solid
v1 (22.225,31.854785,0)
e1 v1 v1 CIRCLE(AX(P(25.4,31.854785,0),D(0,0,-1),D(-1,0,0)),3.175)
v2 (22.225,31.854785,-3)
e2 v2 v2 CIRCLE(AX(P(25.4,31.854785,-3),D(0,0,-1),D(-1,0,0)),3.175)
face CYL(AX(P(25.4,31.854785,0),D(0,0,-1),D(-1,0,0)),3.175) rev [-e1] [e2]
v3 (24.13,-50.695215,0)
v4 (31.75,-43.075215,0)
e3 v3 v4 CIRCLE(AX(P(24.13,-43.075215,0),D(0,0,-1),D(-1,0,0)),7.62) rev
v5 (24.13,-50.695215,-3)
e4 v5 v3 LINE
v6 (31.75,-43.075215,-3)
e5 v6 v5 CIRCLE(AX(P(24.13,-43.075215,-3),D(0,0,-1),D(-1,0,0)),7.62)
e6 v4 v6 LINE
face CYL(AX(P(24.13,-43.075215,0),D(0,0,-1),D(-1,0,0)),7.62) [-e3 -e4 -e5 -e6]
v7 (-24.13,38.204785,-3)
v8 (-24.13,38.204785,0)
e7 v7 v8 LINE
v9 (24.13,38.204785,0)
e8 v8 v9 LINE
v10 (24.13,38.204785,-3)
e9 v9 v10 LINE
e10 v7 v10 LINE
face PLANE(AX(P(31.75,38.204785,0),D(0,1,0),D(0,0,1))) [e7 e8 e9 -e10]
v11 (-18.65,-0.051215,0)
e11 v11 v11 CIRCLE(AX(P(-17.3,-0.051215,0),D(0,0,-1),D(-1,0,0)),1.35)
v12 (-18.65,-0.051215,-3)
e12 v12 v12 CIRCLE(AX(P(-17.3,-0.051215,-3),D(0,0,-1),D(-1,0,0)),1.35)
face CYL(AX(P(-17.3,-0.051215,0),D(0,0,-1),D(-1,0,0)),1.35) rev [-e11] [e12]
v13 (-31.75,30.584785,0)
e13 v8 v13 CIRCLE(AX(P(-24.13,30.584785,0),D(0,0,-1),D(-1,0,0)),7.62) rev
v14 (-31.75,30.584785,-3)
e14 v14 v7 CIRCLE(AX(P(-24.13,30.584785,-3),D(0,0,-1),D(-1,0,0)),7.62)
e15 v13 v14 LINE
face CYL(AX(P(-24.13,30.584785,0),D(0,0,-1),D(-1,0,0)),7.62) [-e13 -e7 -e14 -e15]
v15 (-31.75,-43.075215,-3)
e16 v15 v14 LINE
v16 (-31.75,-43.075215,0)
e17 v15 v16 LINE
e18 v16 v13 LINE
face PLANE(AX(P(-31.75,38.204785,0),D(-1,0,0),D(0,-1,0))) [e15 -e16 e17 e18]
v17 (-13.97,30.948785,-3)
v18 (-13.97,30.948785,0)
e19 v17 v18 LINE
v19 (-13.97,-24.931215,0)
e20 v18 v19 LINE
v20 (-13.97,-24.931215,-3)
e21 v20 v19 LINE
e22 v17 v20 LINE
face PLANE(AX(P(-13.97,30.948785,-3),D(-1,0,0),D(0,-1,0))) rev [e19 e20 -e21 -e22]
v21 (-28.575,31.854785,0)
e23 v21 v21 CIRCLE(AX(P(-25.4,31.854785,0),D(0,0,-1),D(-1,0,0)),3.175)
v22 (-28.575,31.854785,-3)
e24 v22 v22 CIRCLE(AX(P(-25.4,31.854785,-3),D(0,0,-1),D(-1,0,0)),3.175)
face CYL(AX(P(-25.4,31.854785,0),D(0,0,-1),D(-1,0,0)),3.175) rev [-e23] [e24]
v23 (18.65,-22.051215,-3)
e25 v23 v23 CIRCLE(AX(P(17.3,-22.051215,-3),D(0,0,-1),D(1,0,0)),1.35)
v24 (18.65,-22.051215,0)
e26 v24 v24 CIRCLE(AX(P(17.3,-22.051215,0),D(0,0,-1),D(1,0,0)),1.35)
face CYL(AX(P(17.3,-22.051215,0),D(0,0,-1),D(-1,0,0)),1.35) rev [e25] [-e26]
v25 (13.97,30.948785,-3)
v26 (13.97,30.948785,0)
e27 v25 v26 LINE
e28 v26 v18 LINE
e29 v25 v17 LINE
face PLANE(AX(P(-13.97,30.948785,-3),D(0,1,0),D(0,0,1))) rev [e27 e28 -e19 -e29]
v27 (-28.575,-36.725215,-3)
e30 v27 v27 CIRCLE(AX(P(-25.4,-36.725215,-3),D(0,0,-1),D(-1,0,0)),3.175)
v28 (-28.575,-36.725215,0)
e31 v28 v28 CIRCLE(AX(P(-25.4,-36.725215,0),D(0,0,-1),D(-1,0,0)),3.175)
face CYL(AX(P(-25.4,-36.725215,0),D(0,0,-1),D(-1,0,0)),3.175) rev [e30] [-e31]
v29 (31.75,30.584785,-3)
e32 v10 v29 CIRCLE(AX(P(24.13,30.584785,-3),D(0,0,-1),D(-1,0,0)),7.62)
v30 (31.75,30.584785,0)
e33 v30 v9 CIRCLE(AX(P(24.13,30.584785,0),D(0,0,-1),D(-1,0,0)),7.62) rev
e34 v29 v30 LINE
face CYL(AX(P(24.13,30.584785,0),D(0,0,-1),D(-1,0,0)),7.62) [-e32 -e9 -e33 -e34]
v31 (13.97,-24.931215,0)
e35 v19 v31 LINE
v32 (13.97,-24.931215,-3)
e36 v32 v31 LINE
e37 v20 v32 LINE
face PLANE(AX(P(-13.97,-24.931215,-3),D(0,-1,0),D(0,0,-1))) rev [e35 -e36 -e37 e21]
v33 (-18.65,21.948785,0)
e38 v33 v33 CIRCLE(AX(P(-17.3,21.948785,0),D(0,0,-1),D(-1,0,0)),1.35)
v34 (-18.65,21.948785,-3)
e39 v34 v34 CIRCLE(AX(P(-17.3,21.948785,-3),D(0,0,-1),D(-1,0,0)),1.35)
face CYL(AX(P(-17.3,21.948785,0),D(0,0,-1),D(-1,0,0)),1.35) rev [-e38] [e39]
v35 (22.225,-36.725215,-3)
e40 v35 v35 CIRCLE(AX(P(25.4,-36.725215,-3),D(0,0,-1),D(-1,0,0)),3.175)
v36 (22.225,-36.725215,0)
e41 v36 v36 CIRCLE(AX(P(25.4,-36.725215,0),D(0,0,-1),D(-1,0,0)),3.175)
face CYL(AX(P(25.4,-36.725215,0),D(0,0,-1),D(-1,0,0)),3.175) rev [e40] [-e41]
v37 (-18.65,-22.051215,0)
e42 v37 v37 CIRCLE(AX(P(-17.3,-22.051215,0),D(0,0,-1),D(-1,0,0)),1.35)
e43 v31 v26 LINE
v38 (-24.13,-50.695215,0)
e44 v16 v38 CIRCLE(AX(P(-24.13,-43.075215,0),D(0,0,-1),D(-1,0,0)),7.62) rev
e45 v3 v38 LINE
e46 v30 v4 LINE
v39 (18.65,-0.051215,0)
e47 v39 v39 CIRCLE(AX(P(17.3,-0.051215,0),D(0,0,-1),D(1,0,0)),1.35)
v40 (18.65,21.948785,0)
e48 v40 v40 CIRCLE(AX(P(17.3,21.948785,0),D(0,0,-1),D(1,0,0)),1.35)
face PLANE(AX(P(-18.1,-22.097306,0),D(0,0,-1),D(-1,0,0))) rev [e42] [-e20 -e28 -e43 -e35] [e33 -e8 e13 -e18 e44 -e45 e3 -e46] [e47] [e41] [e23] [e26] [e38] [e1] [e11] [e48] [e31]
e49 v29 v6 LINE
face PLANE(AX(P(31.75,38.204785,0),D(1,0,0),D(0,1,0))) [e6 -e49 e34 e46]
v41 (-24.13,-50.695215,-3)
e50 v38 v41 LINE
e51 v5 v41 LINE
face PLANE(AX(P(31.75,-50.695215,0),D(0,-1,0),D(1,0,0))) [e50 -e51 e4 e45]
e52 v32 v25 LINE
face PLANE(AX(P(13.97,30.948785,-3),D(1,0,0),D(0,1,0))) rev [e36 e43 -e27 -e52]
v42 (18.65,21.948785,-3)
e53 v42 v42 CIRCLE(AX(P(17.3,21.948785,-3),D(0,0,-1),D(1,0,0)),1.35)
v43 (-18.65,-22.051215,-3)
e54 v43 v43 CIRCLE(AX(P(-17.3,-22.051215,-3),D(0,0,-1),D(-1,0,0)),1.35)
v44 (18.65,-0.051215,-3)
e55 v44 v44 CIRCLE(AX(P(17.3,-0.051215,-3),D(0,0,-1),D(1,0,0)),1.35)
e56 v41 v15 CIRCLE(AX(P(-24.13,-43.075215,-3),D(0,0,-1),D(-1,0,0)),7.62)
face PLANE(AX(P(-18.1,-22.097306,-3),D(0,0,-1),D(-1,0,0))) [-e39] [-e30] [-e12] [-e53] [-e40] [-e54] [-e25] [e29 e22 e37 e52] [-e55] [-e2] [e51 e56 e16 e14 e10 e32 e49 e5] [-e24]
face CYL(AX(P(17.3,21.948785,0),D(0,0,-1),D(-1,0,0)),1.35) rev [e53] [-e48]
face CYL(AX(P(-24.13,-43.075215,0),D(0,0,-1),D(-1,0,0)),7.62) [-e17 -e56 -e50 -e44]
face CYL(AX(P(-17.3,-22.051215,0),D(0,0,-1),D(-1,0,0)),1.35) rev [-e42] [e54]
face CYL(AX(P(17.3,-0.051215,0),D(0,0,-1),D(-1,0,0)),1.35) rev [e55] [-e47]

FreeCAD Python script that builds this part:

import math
import FreeCAD as App
import Part
import Sketcher
Q = App.Units.Quantity


def edges_at(feature, points):
    """Names of the edges that pass closest to the given points."""
    edges = feature.Shape.Edges
    near = lambda p: min(range(len(edges)), key=lambda i: edges[i].distToShape(Part.Vertex(*p))[0])
    return sorted({f"Edge{near(p) + 1}" for p in points})

doc = App.newDocument("Part")
params = doc.addObject("Spreadsheet::Sheet", "Params")
for row, (alias, value) in enumerate([
    ("pad1_length", "3 mm"),
    ("sketch3_width", "2.5 in"),
    ("sketch3_height", "3.5 in"),
    ("pad2_length", "3 mm"),
    ("sketch4_width", "1.1 in"),
    ("sketch4_height", "2.2 in"),
    ("sketch5_diameter", "0.25 in"),
    ("fillet_radius", "0.3 in"),
], start=1):
    params.set(f"A{row}", alias)
    params.set(f"B{row}", "=" + value)
    params.setAlias(f"B{row}", alias)

body = doc.addObject("PartDesign::Body", "Body")

# Sketch on XY plane
sketch1 = doc.addObject("Sketcher::SketchObject", "Sketch")
body.addObject(sketch1)
sketch1.AttachmentSupport = (doc.XY_Plane, [""])
sketch1.MapMode = "FlatFace"
sketch1.addGeometry([
    Part.LineSegment(App.Vector(-14.850045, 29.751478, 0), App.Vector(-19.69889, 23.298785, 0)),  # 0
    Part.ArcOfCircle(Part.Circle(App.Vector(-18.1, 22.097306, 0), App.Vector(0, 0, 1), 2), math.radians(143.077149), math.radians(180)),  # 1
    Part.LineSegment(App.Vector(-20.1, 22.097306, 0), App.Vector(-20.1, -22.097306, 0)),  # 2
    Part.ArcOfCircle(Part.Circle(App.Vector(-18.1, -22.097306, 0), App.Vector(0, 0, 1), 2), math.radians(-180), math.radians(-143.077149)),  # 3
    Part.LineSegment(App.Vector(-19.69889, -23.298785, 0), App.Vector(-14.850045, -29.751478, 0)),  # 4
    Part.ArcOfCircle(Part.Circle(App.Vector(-13.251155, -28.55, 0), App.Vector(0, 0, 1), 2), math.radians(-143.077149), math.radians(-90)),  # 5
    Part.LineSegment(App.Vector(-13.251155, -30.55, 0), App.Vector(13.251155, -30.55, 0)),  # 6
    Part.ArcOfCircle(Part.Circle(App.Vector(13.251155, -28.55, 0), App.Vector(0, 0, 1), 2), math.radians(-90), math.radians(-36.922851)),  # 7
    Part.LineSegment(App.Vector(14.850045, -29.751478, 0), App.Vector(19.69889, -23.298785, 0)),  # 8
    Part.ArcOfCircle(Part.Circle(App.Vector(18.1, -22.097306, 0), App.Vector(0, 0, 1), 2), math.radians(-36.922851), math.radians(0)),  # 9
    Part.LineSegment(App.Vector(20.1, -22.097306, 0), App.Vector(20.1, 22.097306, 0)),  # 10
    Part.ArcOfCircle(Part.Circle(App.Vector(18.1, 22.097306, 0), App.Vector(0, 0, 1), 2), math.radians(0), math.radians(36.922851)),  # 11
    Part.LineSegment(App.Vector(19.69889, 23.298785, 0), App.Vector(14.850045, 29.751478, 0)),  # 12
    Part.ArcOfCircle(Part.Circle(App.Vector(13.251155, 28.55, 0), App.Vector(0, 0, 1), 2), math.radians(36.922851), math.radians(90)),  # 13
    Part.LineSegment(App.Vector(13.251155, 30.55, 0), App.Vector(-13.251155, 30.55, 0)),  # 14
    Part.ArcOfCircle(Part.Circle(App.Vector(-13.251155, 28.55, 0), App.Vector(0, 0, 1), 2), math.radians(90), math.radians(143.077149)),  # 15
], False)
sketch1.addConstraint([
    Sketcher.Constraint("Tangent", 0, 2, 1, 1),
    Sketcher.Constraint("Tangent", 1, 2, 2, 1),
    Sketcher.Constraint("Tangent", 2, 2, 3, 1),
    Sketcher.Constraint("Tangent", 3, 2, 4, 1),
    Sketcher.Constraint("Tangent", 4, 2, 5, 1),
    Sketcher.Constraint("Tangent", 5, 2, 6, 1),
    Sketcher.Constraint("Tangent", 6, 2, 7, 1),
    Sketcher.Constraint("Tangent", 7, 2, 8, 1),
    Sketcher.Constraint("Tangent", 8, 2, 9, 1),
    Sketcher.Constraint("Tangent", 9, 2, 10, 1),
    Sketcher.Constraint("Tangent", 10, 2, 11, 1),
    Sketcher.Constraint("Tangent", 11, 2, 12, 1),
    Sketcher.Constraint("Tangent", 12, 2, 13, 1),
    Sketcher.Constraint("Tangent", 13, 2, 14, 1),
    Sketcher.Constraint("Tangent", 14, 2, 15, 1),
    Sketcher.Constraint("Tangent", 15, 2, 0, 1),
    Sketcher.Constraint("Vertical", 2),
    Sketcher.Constraint("Horizontal", 6),
    Sketcher.Constraint("Vertical", 10),
    Sketcher.Constraint("Horizontal", 14),
    Sketcher.Constraint("Equal", 1, 3),
    Sketcher.Constraint("Equal", 3, 5),
    Sketcher.Constraint("Equal", 5, 7),
    Sketcher.Constraint("Equal", 7, 9),
    Sketcher.Constraint("Equal", 9, 11),
    Sketcher.Constraint("Equal", 11, 13),
    Sketcher.Constraint("Equal", 13, 15),
    Sketcher.Constraint("Symmetric", 1, 3, 9, 3, -1, 1),
    Sketcher.Constraint("Symmetric", 5, 3, 13, 3, -1, 1),
    Sketcher.Constraint("Symmetric", 4, 2, 7, 2, -2),
    Sketcher.Constraint("Symmetric", 0, 2, 11, 2, -2),
    Sketcher.Constraint("Radius", 1, Q("2 mm")),
    Sketcher.Constraint("DistanceX", 6, 1, 6, 2, Q("26.50231 mm")),
    Sketcher.Constraint("DistanceX", 1, 3, -1, 1, Q("18.1 mm")),
    Sketcher.Constraint("DistanceY", 5, 3, -1, 1, Q("28.55 mm")),
    Sketcher.Constraint("DistanceX", 4, 2, 7, 3, Q("28.1012 mm")),
])
pad1 = doc.addObject("PartDesign::Pad", "Pad")
body.addObject(pad1)
pad1.Profile = sketch1
pad1.setExpression("Length", "Params.pad1_length")
pad1.Reversed = True

# Sketch on XY plane
sketch2 = doc.addObject("Sketcher::SketchObject", "Sketch001")
body.addObject(sketch2)
sketch2.AttachmentSupport = (doc.XY_Plane, [""])
sketch2.MapMode = "FlatFace"
sketch2.AttachmentOffset = App.Placement(App.Vector(0, 0, -3), App.Rotation())
sketch2.addGeometry([
    Part.Circle(App.Vector(-17.3, 21.948784, 0), App.Vector(0, 0, 1), 1.35),  # 0
    Part.Circle(App.Vector(-17.3, -0.051215, 0), App.Vector(0, 0, 1), 1.35),  # 1
    Part.Circle(App.Vector(-17.3, -22.051216, 0), App.Vector(0, 0, 1), 1.35),  # 2
    Part.Circle(App.Vector(-11, -27.75, 0), App.Vector(0, 0, 1), 1.385),  # 3
    Part.Circle(App.Vector(11, -27.75, 0), App.Vector(0, 0, 1), 1.385),  # 4
    Part.Circle(App.Vector(17.3, -22.051216, 0), App.Vector(0, 0, 1), 1.35),  # 5
    Part.Circle(App.Vector(17.3, -0.051215, 0), App.Vector(0, 0, 1), 1.35),  # 6
    Part.Circle(App.Vector(17.3, 21.948784, 0), App.Vector(0, 0, 1), 1.35),  # 7
], False)
sketch2.addConstraint([
    Sketcher.Constraint("Equal", 0, 1),
    Sketcher.Constraint("Equal", 1, 2),
    Sketcher.Constraint("Equal", 3, 4),
    Sketcher.Constraint("Equal", 2, 5),
    Sketcher.Constraint("Equal", 5, 6),
    Sketcher.Constraint("Equal", 6, 7),
    Sketcher.Constraint("Symmetric", 3, 3, 4, 3, -2),
    Sketcher.Constraint("Symmetric", 2, 3, 5, 3, -2),
    Sketcher.Constraint("Symmetric", 1, 3, 6, 3, -2),
    Sketcher.Constraint("Symmetric", 0, 3, 7, 3, -2),
    Sketcher.Constraint("Vertical", 0, 3, 1, 3),
    Sketcher.Constraint("Vertical", 1, 3, 2, 3),
    Sketcher.Constraint("Diameter", 0, Q("2.7 mm")),
    Sketcher.Constraint("Diameter", 3, Q("2.77 mm")),
    Sketcher.Constraint("DistanceX", 0, 3, -1, 1, Q("17.3 mm")),
    Sketcher.Constraint("DistanceX", 3, 3, -1, 1, Q("11 mm")),
    Sketcher.Constraint("DistanceY", 3, 3, -1, 1, Q("27.75 mm")),
    Sketcher.Constraint("DistanceY", 1, 3, 0, 3, Q("22 mm")),
    Sketcher.Constraint("DistanceY", 2, 3, 1, 3, Q("22 mm")),
    Sketcher.Constraint("DistanceY", -1, 1, 0, 3, Q("21.948784 mm")),
])
pocket1 = doc.addObject("PartDesign::Pocket", "Pocket")
body.addObject(pocket1)
pocket1.Profile = sketch2
pocket1.Type = "ThroughAll"
pocket1.Reversed = True

# Sketch on XY plane
sketch3 = doc.addObject("Sketcher::SketchObject", "Sketch002")
body.addObject(sketch3)
sketch3.AttachmentSupport = (doc.XY_Plane, [""])
sketch3.MapMode = "FlatFace"
sketch3.AttachmentOffset = App.Placement(App.Vector(0, 0, -3), App.Rotation())
sketch3.addGeometry([
    Part.LineSegment(App.Vector(31.75, 38.204785, 0), App.Vector(31.75, -50.695216, 0)),  # 0
    Part.LineSegment(App.Vector(31.75, -50.695216, 0), App.Vector(-31.75, -50.695216, 0)),  # 1
    Part.LineSegment(App.Vector(-31.75, -50.695216, 0), App.Vector(-31.75, 38.204785, 0)),  # 2
    Part.LineSegment(App.Vector(-31.75, 38.204785, 0), App.Vector(31.75, 38.204785, 0)),  # 3
    Part.LineSegment(App.Vector(-19.160538, -23.61877, 0), App.Vector(19.160538, -23.61877, 0)),  # 4
    Part.LineSegment(App.Vector(19.160538, -23.61877, 0), App.Vector(19.160538, 23.61877, 0)),  # 5
    Part.LineSegment(App.Vector(19.160538, 23.61877, 0), App.Vector(-19.160538, 23.61877, 0)),  # 6
    Part.LineSegment(App.Vector(-19.160538, 23.61877, 0), App.Vector(-19.160538, -23.61877, 0)),  # 7
], False)
sketch3.addConstraint([
    Sketcher.Constraint("Coincident", 0, 2, 1, 1),
    Sketcher.Constraint("Coincident", 1, 2, 2, 1),
    Sketcher.Constraint("Coincident", 2, 2, 3, 1),
    Sketcher.Constraint("Coincident", 3, 2, 0, 1),
    Sketcher.Constraint("Coincident", 4, 2, 5, 1),
    Sketcher.Constraint("Coincident", 5, 2, 6, 1),
    Sketcher.Constraint("Coincident", 6, 2, 7, 1),
    Sketcher.Constraint("Coincident", 7, 2, 4, 1),
    Sketcher.Constraint("Vertical", 0),
    Sketcher.Constraint("Horizontal", 1),
    Sketcher.Constraint("Vertical", 2),
    Sketcher.Constraint("Horizontal", 3),
    Sketcher.Constraint("Horizontal", 4),
    Sketcher.Constraint("Vertical", 5),
    Sketcher.Constraint("Horizontal", 6),
    Sketcher.Constraint("Vertical", 7),
    Sketcher.Constraint("Symmetric", 4, 2, 6, 2, -1, 1),
    Sketcher.Constraint("DistanceX", 1, 2, 1, 1, Q("2.5 in")),
    Sketcher.Constraint("DistanceY", 0, 2, 0, 1, Q("3.5 in")),
    Sketcher.Constraint("DistanceX", -1, 1, 0, 2, Q("1.25 in")),
    Sketcher.Constraint("DistanceY", 5, 1, 5, 2, Q("47.23754 mm")),
    Sketcher.Constraint("DistanceX", 4, 1, 4, 2, Q("38.321076 mm")),
    Sketcher.Constraint("DistanceY", 0, 2, -1, 1, Q("50.695216 mm")),
])
sketch3.setExpression("Constraints[17]", "Params.sketch3_width")
sketch3.setExpression("Constraints[18]", "Params.sketch3_height")
pad2 = doc.addObject("PartDesign::Pad", "Pad001")
body.addObject(pad2)
pad2.Profile = sketch3
pad2.setExpression("Length", "Params.pad2_length")

# Sketch on XY plane
sketch4 = doc.addObject("Sketcher::SketchObject", "Sketch003")
body.addObject(sketch4)
sketch4.AttachmentSupport = (doc.XY_Plane, [""])
sketch4.MapMode = "FlatFace"
sketch4.addGeometry([
    Part.LineSegment(App.Vector(-13.97, 30.948784, 0), App.Vector(-13.97, -24.931216, 0)),
    Part.LineSegment(App.Vector(-13.97, -24.931216, 0), App.Vector(13.97, -24.931216, 0)),
    Part.LineSegment(App.Vector(13.97, -24.931216, 0), App.Vector(13.97, 30.948784, 0)),
    Part.LineSegment(App.Vector(13.97, 30.948784, 0), App.Vector(-13.97, 30.948784, 0)),
], False)
sketch4.addConstraint([
    Sketcher.Constraint("Coincident", 0, 2, 1, 1),
    Sketcher.Constraint("Coincident", 1, 2, 2, 1),
    Sketcher.Constraint("Coincident", 2, 2, 3, 1),
    Sketcher.Constraint("Coincident", 3, 2, 0, 1),
    Sketcher.Constraint("Vertical", 0),
    Sketcher.Constraint("Horizontal", 1),
    Sketcher.Constraint("Vertical", 2),
    Sketcher.Constraint("Horizontal", 3),
    Sketcher.Constraint("DistanceX", 1, 1, 1, 2, Q("1.1 in")),
    Sketcher.Constraint("DistanceY", 0, 2, 0, 1, Q("2.2 in")),
    Sketcher.Constraint("DistanceX", 0, 2, -1, 1, Q("0.55 in")),
    Sketcher.Constraint("DistanceY", 0, 2, -1, 1, Q("24.931216 mm")),
])
sketch4.setExpression("Constraints[8]", "Params.sketch4_width")
sketch4.setExpression("Constraints[9]", "Params.sketch4_height")
pocket2 = doc.addObject("PartDesign::Pocket", "Pocket001")
body.addObject(pocket2)
pocket2.Profile = sketch4
pocket2.Type = "ThroughAll"

# Sketch on XY plane
sketch5 = doc.addObject("Sketcher::SketchObject", "Sketch004")
body.addObject(sketch5)
sketch5.AttachmentSupport = (doc.XY_Plane, [""])
sketch5.MapMode = "FlatFace"
sketch5.AttachmentOffset = App.Placement(App.Vector(0, 0, -3), App.Rotation())
sketch5.addGeometry([
    Part.Circle(App.Vector(-25.4, 31.854785, 0), App.Vector(0, 0, 1), 3.175),
    Part.Circle(App.Vector(25.4, 31.854785, 0), App.Vector(0, 0, 1), 3.175),
    Part.Circle(App.Vector(25.4, -36.725215, 0), App.Vector(0, 0, 1), 3.175),
    Part.Circle(App.Vector(-25.4, -36.725215, 0), App.Vector(0, 0, 1), 3.175),
], False)
sketch5.addConstraint([
    Sketcher.Constraint("Equal", 0, 1),
    Sketcher.Constraint("Equal", 1, 2),
    Sketcher.Constraint("Equal", 2, 3),
    Sketcher.Constraint("Symmetric", 0, 3, 1, 3, -2),
    Sketcher.Constraint("Symmetric", 2, 3, 3, 3, -2),
    Sketcher.Constraint("Vertical", 1, 3, 2, 3),
    Sketcher.Constraint("Diameter", 0, Q("0.25 in")),
    Sketcher.Constraint("DistanceX", 0, 3, -1, 1, Q("1 in")),
    Sketcher.Constraint("DistanceY", 2, 3, 1, 3, Q("2.7 in")),
    Sketcher.Constraint("DistanceY", -1, 1, 0, 3, Q("31.854785 mm")),
])
sketch5.setExpression("Constraints[6]", "Params.sketch5_diameter")
pocket3 = doc.addObject("PartDesign::Pocket", "Pocket002")
body.addObject(pocket3)
pocket3.Profile = sketch5
pocket3.Type = "ThroughAll"
pocket3.Reversed = True
doc.recompute()

fillet = doc.addObject("PartDesign::Fillet", "Fillet")
body.addObject(fillet)
fillet.Base = (pocket3, edges_at(pocket3, [
    (-31.75, 38.205, -1.5),
    (-31.75, -50.695, -1.5),
    (31.75, -50.695, -1.5),
    (31.75, 38.205, -1.5),
]))
fillet.setExpression("Radius", "Params.fillet_radius")

doc.recompute()
